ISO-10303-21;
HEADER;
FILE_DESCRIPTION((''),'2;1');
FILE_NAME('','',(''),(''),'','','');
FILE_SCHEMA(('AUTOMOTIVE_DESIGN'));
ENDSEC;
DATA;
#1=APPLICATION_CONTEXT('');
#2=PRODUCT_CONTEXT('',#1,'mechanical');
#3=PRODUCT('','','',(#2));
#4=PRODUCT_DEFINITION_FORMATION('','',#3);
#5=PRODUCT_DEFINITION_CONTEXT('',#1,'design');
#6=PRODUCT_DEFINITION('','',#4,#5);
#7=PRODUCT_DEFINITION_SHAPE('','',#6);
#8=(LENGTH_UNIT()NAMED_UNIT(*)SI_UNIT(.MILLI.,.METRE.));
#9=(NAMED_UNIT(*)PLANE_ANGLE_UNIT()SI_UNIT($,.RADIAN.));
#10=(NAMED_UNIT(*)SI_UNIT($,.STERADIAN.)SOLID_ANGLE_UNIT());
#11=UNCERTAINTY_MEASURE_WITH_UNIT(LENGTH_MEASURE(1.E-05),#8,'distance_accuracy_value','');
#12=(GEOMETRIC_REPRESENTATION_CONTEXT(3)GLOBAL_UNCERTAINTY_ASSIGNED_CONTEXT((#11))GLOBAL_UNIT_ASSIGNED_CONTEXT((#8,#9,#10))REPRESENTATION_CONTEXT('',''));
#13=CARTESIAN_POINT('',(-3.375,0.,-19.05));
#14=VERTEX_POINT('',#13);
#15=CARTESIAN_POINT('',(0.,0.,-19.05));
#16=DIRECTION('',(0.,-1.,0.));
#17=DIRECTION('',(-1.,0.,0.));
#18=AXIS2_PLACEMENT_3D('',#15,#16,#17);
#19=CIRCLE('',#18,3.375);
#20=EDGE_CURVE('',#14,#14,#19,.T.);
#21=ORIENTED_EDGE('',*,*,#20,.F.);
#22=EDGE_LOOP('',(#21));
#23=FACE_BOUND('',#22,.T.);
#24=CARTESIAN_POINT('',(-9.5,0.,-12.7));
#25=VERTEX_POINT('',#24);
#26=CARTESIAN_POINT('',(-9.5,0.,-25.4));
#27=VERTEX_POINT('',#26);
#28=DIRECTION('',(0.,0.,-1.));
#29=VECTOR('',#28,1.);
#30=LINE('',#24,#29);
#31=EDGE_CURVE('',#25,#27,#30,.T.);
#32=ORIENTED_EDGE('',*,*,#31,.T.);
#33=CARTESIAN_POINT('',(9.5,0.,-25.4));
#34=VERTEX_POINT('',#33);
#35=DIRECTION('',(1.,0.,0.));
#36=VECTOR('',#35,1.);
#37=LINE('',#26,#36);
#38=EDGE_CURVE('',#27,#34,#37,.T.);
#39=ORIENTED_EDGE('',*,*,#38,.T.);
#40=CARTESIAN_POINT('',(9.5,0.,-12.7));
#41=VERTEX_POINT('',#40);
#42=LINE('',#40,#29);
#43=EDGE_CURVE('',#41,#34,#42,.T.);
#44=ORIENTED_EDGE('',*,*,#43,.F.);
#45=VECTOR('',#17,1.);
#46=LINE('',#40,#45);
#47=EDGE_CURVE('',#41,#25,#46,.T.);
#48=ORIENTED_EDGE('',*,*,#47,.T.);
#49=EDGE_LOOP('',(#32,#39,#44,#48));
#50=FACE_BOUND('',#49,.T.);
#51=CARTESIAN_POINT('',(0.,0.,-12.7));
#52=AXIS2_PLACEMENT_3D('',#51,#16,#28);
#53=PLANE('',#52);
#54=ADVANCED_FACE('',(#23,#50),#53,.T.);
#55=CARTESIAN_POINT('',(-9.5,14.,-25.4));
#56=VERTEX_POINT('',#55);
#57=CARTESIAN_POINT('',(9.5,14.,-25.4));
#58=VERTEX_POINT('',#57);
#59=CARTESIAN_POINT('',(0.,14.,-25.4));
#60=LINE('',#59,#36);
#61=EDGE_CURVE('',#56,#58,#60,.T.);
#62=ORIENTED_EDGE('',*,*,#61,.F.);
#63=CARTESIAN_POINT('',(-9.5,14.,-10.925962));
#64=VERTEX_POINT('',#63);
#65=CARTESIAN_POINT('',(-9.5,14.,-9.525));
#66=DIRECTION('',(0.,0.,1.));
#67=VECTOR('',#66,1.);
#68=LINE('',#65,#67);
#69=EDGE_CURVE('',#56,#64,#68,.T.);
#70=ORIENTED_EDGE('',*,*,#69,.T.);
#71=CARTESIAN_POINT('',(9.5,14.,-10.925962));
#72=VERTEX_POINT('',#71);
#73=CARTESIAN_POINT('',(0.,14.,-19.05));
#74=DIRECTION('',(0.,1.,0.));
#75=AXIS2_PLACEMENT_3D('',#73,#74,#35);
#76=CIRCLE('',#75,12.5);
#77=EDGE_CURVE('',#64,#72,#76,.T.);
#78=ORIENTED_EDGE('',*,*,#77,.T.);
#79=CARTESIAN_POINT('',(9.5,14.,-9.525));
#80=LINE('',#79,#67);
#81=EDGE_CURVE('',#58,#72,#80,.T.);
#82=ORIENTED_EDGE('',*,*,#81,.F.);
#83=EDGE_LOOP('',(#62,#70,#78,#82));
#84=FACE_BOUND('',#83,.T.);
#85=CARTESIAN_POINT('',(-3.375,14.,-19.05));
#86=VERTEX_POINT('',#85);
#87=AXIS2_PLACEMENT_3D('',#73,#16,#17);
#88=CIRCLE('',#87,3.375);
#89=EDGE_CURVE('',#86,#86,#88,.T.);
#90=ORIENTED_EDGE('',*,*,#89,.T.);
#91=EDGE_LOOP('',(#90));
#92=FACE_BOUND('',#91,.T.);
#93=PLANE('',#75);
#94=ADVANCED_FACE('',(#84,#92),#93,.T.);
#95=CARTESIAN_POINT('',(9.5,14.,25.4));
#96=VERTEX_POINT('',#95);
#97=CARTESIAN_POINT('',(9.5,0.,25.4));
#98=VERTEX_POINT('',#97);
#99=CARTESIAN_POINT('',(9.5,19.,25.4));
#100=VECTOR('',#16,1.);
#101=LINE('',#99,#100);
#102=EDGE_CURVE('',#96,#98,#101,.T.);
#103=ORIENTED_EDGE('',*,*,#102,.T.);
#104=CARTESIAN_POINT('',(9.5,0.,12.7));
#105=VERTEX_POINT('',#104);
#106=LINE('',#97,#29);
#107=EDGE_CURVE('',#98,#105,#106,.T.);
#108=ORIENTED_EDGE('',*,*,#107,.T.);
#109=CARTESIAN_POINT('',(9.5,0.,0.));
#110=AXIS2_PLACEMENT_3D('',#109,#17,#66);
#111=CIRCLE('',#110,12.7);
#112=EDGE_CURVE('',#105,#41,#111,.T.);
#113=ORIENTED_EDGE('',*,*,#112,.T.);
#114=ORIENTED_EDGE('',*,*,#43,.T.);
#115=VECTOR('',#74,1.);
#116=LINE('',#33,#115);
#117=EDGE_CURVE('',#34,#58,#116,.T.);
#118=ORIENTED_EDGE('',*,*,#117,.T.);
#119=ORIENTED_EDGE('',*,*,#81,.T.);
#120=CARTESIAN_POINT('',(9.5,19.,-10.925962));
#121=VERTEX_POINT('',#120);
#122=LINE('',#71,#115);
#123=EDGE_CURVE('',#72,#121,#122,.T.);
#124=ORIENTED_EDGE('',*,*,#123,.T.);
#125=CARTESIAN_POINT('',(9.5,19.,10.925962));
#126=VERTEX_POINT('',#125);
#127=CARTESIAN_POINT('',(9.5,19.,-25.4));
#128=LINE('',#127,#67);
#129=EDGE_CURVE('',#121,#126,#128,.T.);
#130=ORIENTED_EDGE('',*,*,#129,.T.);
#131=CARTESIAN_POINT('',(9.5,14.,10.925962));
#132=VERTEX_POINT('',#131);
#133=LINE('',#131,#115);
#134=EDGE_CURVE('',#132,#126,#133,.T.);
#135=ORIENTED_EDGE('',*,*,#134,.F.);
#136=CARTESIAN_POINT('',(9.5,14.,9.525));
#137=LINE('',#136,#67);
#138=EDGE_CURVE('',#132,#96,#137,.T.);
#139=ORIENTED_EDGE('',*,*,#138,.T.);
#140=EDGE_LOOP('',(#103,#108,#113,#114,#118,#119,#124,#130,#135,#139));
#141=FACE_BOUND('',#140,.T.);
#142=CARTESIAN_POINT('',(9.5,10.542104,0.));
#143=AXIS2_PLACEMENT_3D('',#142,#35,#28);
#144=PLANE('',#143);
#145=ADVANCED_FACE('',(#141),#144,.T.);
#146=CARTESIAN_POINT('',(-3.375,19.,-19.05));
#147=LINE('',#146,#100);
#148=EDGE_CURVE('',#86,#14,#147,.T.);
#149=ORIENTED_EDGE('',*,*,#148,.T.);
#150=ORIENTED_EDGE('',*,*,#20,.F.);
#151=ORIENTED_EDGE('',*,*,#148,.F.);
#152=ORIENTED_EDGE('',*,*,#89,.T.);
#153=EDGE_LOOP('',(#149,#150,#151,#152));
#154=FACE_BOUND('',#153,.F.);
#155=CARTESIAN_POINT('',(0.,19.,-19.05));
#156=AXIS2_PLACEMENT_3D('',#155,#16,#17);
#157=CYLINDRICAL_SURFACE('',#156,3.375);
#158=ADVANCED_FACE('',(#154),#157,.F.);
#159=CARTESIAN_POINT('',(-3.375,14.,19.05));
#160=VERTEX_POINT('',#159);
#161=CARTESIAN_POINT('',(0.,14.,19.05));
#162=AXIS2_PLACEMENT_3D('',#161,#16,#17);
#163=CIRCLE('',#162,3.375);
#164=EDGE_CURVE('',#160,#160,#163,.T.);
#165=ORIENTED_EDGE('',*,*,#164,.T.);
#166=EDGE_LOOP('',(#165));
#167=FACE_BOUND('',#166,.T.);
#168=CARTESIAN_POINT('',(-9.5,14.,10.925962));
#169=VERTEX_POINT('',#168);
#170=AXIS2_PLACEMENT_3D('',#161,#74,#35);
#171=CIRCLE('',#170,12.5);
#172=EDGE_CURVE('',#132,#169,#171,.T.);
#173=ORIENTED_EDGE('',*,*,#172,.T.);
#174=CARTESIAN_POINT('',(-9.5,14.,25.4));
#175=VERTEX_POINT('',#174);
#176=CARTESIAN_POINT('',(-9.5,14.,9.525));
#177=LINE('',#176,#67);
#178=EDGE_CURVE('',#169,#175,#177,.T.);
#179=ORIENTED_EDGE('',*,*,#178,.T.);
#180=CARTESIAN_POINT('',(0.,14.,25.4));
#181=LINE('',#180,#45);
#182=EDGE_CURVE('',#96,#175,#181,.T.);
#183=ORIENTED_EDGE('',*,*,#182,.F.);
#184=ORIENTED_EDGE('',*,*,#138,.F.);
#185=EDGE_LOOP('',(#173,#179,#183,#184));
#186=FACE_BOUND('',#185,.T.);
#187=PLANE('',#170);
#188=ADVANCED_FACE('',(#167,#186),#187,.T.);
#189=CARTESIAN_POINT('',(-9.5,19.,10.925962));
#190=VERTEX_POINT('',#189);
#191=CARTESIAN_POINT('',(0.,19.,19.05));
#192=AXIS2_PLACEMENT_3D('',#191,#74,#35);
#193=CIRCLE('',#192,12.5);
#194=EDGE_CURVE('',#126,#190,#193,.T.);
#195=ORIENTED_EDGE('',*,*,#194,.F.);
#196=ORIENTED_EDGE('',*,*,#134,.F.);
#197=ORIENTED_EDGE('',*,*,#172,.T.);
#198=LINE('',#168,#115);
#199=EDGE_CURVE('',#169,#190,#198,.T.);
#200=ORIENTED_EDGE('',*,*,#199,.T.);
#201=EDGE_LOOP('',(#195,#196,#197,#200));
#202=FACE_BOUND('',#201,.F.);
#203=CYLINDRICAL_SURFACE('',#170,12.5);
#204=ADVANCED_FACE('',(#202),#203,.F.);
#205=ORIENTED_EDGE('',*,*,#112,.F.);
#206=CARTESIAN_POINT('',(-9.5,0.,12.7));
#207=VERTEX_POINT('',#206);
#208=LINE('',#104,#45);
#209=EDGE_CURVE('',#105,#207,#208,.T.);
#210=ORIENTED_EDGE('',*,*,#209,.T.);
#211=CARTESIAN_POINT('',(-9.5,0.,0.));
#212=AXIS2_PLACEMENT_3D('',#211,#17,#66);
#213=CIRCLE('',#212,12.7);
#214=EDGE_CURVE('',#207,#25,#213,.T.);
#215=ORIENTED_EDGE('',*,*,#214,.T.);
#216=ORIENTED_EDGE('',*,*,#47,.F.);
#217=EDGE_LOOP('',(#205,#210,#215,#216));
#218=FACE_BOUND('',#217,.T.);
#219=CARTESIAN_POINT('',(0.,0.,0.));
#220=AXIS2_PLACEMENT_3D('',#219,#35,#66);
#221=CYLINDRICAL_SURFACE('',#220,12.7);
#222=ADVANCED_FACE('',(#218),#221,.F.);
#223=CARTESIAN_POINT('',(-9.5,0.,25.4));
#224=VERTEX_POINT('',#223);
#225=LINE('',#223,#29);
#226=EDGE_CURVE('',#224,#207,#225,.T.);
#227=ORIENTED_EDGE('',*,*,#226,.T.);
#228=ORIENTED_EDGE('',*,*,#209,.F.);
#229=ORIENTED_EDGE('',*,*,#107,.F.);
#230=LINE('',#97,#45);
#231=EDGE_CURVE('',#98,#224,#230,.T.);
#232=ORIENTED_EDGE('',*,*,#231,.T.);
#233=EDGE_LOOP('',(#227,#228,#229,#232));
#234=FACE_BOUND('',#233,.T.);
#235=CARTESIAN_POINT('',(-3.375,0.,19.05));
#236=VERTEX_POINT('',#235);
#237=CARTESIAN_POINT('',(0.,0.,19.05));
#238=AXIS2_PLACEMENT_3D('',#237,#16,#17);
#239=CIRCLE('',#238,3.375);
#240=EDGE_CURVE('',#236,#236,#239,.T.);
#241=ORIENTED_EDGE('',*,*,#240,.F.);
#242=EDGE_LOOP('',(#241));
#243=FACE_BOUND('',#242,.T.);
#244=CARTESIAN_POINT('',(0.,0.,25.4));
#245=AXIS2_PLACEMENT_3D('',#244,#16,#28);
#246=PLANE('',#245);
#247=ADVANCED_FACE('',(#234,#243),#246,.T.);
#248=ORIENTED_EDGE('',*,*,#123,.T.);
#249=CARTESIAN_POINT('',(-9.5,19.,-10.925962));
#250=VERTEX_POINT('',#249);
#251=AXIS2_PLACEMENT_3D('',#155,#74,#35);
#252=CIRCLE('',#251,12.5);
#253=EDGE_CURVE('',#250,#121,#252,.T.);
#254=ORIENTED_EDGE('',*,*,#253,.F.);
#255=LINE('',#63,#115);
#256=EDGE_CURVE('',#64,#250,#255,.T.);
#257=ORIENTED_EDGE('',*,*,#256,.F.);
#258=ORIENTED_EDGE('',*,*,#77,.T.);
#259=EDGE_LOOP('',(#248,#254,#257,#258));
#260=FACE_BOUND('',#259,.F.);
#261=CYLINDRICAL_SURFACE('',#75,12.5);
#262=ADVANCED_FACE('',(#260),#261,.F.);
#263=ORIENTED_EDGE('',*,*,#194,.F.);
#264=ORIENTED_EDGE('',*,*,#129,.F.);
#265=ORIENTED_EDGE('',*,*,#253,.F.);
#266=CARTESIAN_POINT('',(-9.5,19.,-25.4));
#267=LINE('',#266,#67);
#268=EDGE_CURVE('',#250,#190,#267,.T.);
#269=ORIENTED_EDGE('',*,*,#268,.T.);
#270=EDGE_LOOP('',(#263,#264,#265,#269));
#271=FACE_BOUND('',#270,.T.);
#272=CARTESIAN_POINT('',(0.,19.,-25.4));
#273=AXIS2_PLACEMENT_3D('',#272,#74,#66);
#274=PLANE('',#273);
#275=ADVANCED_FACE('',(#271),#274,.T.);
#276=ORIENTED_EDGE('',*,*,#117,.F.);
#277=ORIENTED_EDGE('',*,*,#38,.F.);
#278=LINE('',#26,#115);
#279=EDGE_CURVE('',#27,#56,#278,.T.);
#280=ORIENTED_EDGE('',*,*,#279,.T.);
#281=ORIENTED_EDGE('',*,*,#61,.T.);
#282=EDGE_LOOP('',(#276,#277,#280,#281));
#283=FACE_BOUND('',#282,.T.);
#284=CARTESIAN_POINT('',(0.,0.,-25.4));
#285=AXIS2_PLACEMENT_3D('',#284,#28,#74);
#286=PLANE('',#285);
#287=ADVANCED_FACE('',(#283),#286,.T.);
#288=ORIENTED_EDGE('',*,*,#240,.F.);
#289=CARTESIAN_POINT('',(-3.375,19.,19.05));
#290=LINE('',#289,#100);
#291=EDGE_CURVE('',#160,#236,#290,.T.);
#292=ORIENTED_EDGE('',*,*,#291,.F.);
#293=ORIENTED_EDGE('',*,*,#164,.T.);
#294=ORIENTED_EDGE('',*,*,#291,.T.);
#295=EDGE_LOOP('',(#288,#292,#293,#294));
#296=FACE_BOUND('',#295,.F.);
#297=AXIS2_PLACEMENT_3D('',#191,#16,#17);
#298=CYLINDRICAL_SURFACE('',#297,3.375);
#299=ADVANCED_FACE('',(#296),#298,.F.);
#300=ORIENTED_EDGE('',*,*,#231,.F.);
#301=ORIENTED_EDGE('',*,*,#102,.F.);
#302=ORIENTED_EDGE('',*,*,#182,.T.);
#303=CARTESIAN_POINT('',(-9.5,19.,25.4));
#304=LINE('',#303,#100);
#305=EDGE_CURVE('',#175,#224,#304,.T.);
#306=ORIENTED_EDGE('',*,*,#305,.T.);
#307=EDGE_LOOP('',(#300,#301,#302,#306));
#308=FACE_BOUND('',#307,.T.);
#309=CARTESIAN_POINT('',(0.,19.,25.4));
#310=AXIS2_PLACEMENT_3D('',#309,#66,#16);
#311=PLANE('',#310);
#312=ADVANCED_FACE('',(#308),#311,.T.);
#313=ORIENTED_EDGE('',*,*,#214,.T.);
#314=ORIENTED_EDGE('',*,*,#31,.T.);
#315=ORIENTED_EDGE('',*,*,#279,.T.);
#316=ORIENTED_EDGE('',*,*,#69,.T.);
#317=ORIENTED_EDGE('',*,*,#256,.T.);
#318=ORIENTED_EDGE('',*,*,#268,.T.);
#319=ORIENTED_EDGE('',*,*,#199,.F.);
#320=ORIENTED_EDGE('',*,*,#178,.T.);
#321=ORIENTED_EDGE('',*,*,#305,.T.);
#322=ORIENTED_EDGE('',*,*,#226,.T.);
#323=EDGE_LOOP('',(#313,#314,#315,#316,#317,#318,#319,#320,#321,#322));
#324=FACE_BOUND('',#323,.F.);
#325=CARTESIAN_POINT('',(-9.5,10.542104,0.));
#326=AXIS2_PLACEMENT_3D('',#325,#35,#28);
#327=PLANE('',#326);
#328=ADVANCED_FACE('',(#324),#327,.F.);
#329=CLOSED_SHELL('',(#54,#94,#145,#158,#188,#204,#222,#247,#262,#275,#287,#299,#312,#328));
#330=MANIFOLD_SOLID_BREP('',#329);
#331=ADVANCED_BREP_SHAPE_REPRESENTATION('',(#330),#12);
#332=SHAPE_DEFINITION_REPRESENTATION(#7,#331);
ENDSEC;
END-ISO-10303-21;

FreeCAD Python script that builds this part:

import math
import FreeCAD as App
import Part
import Sketcher

V = App.Vector
Q = App.Units.Quantity

doc = App.newDocument("Part")
body = doc.addObject("PartDesign::Body", "Body")

sketch1 = body.newObject("Sketcher::SketchObject", "Sketch")
sketch1.AttachmentSupport = (doc.getObject("YZ_Plane"), [""])
sketch1.MapMode = "FlatFace"
sketch1.addGeometry([
    Part.LineSegment(V(0, -13, 0), V(0, -25, 0)),
    Part.LineSegment(V(0, -25, 0), V(19, -25, 0)),
    Part.LineSegment(V(19, -25, 0), V(19, 25, 0)),
    Part.LineSegment(V(19, 25, 0), V(0, 25, 0)),
    Part.LineSegment(V(0, 25, 0), V(0, 13, 0)),
    Part.ArcOfCircle(Part.Circle(V(0, 0, 0), V(0, 0, 1), 13), math.radians(-90), math.radians(90)),
], False)
sketch1.addConstraint([
    Sketcher.Constraint("Coincident", 0, 2, 1, 1),
    Sketcher.Constraint("Coincident", 1, 2, 2, 1),
    Sketcher.Constraint("Coincident", 2, 2, 3, 1),
    Sketcher.Constraint("Coincident", 3, 2, 4, 1),
    Sketcher.Constraint("Coincident", 4, 2, 5, 2),
    Sketcher.Constraint("Coincident", 5, 1, 0, 1),
    Sketcher.Constraint("Vertical", 0),
    Sketcher.Constraint("Horizontal", 1),
    Sketcher.Constraint("Vertical", 2),
    Sketcher.Constraint("Horizontal", 3),
    Sketcher.Constraint("Vertical", 4),
    Sketcher.Constraint("Coincident", 5, 3, -1, 1),
    Sketcher.Constraint("Symmetric", 0, 2, 3, 2, -1, 1),
    Sketcher.Constraint("PointOnObject", 0, 2, -2),
    Sketcher.Constraint("Radius", 5, Q("0.5 in")),
    Sketcher.Constraint("DistanceY", 2, 1, 2, 2, Q("2 in")),
    Sketcher.Constraint("DistanceX", 1, 1, 1, 2, Q("19 mm")),
])
pad1 = body.newObject("PartDesign::Pad", "Pad")
pad1.Profile = sketch1
pad1.Length = 19
pad1.Midplane = True

sketch2 = body.newObject("Sketcher::SketchObject", "Sketch001")
sketch2.AttachmentSupport = (doc.getObject("XZ_Plane"), [""])
sketch2.MapMode = "FlatFace"
sketch2.AttachmentOffset = App.Placement(V(0, 0, -19), App.Rotation())
sketch2.addGeometry([
    Part.Circle(V(0, -19.1, 0), V(0, 0, 1), 3.4),
    Part.Circle(V(0, 19.1, 0), V(0, 0, 1), 3.4),
], False)
sketch2.addConstraint([
    Sketcher.Constraint("Equal", 0, 1),
    Sketcher.Constraint("Symmetric", 0, 3, 1, 3, -1, 1),
    Sketcher.Constraint("PointOnObject", 0, 3, -2),
    Sketcher.Constraint("DistanceY", 0, 3, 1, 3, Q("1.5 in")),
    Sketcher.Constraint("Diameter", 0, Q("6.75 mm")),
])
doc.recompute()
hole = body.newObject("PartDesign::Hole", "Hole")
hole.Profile = sketch2
hole.ThreadType = "None"
hole.Diameter = 6.75
hole.DepthType = "ThroughAll"
hole.HoleCutType = "Counterbore"
hole.HoleCutDiameter = 25
hole.HoleCutDepth = 5
hole.Reversed = True

doc.recompute()
